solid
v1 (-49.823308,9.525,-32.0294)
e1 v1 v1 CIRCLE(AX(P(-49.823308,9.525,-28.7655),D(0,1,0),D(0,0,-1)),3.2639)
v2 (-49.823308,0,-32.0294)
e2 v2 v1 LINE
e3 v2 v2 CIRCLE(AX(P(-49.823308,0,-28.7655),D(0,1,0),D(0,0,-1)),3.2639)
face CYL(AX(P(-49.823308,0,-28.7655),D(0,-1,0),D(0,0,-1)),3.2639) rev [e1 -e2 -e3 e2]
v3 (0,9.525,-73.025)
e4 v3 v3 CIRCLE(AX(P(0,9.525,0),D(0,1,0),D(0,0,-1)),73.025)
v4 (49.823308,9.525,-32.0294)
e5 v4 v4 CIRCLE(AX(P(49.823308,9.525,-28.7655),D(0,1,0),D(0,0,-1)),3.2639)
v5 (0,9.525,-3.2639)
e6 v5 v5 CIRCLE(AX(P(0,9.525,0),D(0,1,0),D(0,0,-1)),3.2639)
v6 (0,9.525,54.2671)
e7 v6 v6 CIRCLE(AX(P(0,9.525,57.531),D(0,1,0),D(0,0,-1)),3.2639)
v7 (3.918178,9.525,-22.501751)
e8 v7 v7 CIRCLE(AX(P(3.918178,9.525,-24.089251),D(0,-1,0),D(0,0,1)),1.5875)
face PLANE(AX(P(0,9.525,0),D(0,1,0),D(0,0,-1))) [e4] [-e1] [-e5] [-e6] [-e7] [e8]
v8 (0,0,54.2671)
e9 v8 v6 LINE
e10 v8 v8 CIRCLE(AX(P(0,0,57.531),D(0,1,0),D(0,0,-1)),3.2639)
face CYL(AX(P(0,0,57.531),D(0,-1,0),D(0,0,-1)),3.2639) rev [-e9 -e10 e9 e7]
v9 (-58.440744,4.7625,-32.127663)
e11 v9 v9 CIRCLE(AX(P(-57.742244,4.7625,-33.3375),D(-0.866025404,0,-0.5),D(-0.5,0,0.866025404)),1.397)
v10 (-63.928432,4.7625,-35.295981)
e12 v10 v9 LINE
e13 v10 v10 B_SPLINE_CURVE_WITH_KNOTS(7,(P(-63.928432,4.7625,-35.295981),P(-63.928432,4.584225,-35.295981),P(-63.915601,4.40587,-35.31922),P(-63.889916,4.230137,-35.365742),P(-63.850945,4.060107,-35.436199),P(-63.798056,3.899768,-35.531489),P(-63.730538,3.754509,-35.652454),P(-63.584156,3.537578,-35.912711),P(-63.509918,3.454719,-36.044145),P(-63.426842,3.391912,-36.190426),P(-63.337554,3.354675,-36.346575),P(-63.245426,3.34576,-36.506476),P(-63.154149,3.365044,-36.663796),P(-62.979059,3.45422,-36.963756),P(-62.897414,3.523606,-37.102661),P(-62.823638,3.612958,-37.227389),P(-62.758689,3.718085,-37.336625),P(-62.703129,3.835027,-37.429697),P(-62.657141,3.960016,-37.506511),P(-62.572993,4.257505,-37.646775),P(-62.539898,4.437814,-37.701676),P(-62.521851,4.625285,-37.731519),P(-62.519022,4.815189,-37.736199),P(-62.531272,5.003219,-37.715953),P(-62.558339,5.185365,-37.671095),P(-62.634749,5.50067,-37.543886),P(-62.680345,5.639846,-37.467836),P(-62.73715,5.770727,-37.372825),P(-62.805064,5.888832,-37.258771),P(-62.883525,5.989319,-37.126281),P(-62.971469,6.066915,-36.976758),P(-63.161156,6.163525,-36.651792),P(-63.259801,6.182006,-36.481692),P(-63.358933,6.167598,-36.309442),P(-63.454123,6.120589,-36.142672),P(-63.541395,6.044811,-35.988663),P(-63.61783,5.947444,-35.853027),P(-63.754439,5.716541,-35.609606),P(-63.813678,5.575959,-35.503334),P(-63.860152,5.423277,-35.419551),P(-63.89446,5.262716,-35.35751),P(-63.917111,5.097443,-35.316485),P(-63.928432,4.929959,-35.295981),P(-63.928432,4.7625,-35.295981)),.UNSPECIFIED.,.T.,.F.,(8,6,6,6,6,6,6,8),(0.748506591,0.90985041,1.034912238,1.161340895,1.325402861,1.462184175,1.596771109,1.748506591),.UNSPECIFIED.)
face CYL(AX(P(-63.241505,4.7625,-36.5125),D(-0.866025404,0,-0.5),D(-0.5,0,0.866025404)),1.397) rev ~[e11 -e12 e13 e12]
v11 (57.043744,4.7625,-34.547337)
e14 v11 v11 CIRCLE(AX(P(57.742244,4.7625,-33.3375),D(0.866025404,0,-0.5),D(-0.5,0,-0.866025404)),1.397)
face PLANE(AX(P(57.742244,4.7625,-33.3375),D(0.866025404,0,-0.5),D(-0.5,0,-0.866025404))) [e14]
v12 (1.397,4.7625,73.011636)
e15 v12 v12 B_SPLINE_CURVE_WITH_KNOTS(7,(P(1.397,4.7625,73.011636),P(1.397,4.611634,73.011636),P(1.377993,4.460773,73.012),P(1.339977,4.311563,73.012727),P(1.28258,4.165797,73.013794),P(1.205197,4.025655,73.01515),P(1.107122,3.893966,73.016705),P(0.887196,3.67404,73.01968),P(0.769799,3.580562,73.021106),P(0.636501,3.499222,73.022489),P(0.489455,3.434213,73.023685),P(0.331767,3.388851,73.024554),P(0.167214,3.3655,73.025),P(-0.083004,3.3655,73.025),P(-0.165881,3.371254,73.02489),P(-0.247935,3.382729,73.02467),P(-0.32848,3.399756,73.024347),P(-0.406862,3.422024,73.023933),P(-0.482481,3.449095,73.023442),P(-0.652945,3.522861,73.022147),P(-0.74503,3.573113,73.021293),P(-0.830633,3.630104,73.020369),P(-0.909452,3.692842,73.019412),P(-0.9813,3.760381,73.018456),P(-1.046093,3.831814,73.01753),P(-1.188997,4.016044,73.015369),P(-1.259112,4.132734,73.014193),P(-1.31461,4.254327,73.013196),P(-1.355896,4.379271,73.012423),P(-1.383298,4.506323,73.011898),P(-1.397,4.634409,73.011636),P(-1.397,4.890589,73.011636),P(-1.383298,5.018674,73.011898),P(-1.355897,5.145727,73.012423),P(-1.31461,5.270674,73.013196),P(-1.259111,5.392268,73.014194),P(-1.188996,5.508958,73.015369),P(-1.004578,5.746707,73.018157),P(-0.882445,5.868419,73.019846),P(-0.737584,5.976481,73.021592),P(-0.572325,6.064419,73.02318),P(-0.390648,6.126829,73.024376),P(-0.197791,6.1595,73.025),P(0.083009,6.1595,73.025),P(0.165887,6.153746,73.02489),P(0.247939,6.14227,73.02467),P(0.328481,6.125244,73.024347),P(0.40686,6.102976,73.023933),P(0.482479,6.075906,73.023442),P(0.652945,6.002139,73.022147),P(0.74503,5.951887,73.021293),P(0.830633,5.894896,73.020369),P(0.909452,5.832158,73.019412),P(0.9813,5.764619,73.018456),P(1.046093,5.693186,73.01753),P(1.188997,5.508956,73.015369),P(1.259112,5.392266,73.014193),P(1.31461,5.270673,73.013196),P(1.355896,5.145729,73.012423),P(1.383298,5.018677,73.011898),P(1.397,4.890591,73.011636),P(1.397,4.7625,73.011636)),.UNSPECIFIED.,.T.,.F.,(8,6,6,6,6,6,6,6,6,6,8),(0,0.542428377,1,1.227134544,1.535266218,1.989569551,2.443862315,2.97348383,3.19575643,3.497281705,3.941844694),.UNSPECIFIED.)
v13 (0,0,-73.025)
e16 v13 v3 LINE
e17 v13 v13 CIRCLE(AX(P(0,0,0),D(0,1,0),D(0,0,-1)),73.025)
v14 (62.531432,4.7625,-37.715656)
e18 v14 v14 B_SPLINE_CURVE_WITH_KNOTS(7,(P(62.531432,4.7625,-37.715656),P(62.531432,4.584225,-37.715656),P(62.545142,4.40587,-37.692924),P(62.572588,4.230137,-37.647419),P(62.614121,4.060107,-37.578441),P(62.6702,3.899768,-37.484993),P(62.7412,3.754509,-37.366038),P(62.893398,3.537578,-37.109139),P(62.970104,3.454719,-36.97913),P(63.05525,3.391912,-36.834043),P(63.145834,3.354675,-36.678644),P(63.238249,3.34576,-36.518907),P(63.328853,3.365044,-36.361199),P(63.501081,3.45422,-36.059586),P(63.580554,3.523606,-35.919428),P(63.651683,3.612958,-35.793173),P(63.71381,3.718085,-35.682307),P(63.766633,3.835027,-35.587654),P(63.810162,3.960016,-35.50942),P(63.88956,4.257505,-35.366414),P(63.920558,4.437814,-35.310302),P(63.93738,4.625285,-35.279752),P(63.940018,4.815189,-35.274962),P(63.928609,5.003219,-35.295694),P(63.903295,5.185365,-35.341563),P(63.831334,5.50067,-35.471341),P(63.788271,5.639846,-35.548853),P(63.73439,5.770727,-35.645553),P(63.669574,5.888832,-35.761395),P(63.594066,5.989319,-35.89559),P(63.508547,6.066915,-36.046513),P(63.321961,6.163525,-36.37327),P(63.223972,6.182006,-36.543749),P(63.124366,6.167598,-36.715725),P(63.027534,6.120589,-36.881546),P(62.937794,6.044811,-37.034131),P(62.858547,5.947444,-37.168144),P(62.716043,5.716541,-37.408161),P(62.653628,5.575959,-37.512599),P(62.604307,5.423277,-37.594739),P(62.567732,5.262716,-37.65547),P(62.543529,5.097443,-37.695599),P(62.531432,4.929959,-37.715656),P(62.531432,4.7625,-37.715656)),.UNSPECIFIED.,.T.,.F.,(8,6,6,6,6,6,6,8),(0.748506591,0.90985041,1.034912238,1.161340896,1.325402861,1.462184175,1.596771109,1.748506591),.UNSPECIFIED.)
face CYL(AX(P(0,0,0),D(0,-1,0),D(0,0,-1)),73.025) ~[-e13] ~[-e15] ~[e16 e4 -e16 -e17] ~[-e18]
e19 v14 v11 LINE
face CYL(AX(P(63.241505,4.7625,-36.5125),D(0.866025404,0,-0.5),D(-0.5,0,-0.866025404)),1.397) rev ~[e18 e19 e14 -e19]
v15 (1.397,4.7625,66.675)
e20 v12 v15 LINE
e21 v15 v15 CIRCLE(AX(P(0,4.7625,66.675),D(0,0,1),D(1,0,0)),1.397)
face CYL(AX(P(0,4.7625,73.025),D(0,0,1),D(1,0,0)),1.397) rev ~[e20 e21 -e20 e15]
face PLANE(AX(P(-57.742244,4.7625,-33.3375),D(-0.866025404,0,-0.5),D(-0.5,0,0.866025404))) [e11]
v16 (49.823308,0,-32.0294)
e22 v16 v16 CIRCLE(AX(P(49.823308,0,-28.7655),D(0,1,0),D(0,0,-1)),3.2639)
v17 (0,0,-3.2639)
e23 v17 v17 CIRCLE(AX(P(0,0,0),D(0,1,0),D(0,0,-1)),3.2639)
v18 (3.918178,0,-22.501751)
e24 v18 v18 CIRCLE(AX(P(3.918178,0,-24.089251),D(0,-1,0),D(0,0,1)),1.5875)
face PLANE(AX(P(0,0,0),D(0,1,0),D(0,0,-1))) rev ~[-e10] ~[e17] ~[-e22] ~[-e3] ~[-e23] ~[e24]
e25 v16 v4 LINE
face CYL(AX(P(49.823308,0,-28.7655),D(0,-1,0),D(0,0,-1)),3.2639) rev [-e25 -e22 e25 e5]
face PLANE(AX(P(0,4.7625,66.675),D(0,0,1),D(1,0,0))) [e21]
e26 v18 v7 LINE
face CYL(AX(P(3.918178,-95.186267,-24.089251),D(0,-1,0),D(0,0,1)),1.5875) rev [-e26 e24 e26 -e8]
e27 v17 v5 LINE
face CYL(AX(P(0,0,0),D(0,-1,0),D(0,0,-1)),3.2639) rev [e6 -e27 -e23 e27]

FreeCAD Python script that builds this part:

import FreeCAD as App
import Part
import Sketcher
from FreeCAD import Vector
Q = App.Units.Quantity

doc = App.newDocument("Part")
body = doc.addObject("PartDesign::Body", "Body")

sketch1 = body.newObject("Sketcher::SketchObject", "Sketch")
sketch1.AttachmentSupport = (doc.getObject("XZ_Plane"), [""])
sketch1.MapMode = "FlatFace"
sketch1.addGeometry([
    Part.Circle(Vector(0, 0, 0), Vector(0, 0, 1), 73),
    Part.Circle(Vector(0, 57.5, 0), Vector(0, 0, 1), 3.3),
    Part.Circle(Vector(49.8, -28.8, 0), Vector(0, 0, 1), 3.3),
    Part.Circle(Vector(0, 0, 0), Vector(0, 0, 1), 3.3),
    Part.Circle(Vector(-49.8, -28.8, 0), Vector(0, 0, 1), 3.3),
], False)
sketch1.addConstraint([
    Sketcher.Constraint("Coincident", 0, 3, -1, 1),
    Sketcher.Constraint("Coincident", 3, 3, -1, 1),
    Sketcher.Constraint("Equal", 1, 2),
    Sketcher.Constraint("Equal", 2, 3),
    Sketcher.Constraint("Equal", 3, 4),
    Sketcher.Constraint("Symmetric", 2, 3, 4, 3, -2),
    Sketcher.Constraint("PointOnObject", 1, 3, -2),
    Sketcher.Constraint("Diameter", 0, Q("5.75 in")),
    Sketcher.Constraint("Diameter", 1, Q("0.257 in")),
    Sketcher.Constraint("DistanceY", -1, 1, 1, 3, Q("2.265 in")),
    Sketcher.Constraint("DistanceY", 2, 3, -1, 1, Q("1.1325 in")),
    Sketcher.Constraint("DistanceX", -1, 1, 2, 3, Q("49.823308 mm")),
])
pad1 = body.newObject("PartDesign::Pad", "Pad")
pad1.Profile = sketch1
pad1.Length = Q("0.375 in")
pad1.Reversed = True

sketch2 = body.newObject("Sketcher::SketchObject", "Sketch001")
sketch2.AttachmentSupport = (doc.getObject("XY_Plane"), [""])
sketch2.MapMode = "FlatFace"
sketch2.AttachmentOffset = App.Placement(Vector(0, 0, 2.875 * 25.4), App.Rotation())
sketch2.addGeometry(Part.Circle(Vector(0, 4.8, 0), Vector(0, 0, 1), 1.4), False)
sketch2.addConstraint([
    Sketcher.Constraint("PointOnObject", 0, 3, -2),
    Sketcher.Constraint("Diameter", 0, Q("0.11 in")),
    Sketcher.Constraint("DistanceY", -1, 1, 0, 3, Q("0.1875 in")),
])
pocket1 = body.newObject("PartDesign::Pocket", "Pocket")
pocket1.Profile = sketch2
pocket1.Length = Q("0.25 in")
doc.recompute()

polarpattern = body.newObject("PartDesign::PolarPattern", "PolarPattern")
polarpattern.Originals = [pocket1]
polarpattern.Axis = (doc.getObject("Y_Axis"), [""])
polarpattern.Angle = 360
polarpattern.Occurrences = 3
body.Tip = polarpattern

sketch3 = body.newObject("Sketcher::SketchObject", "Sketch002")
sketch3.AttachmentSupport = (doc.getObject("XZ_Plane"), [""])
sketch3.MapMode = "FlatFace"
sketch3.AttachmentOffset = App.Placement(Vector(0, 0, -0.375 * 25.4), App.Rotation())
sketch3.addGeometry(Part.Circle(Vector(3.9, -24.1, 0), Vector(0, 0, 1), 1.6), False)
sketch3.addConstraint([
    Sketcher.Constraint("Diameter", 0, Q("0.125 in")),
    Sketcher.Constraint("DistanceY", 0, 3, -1, 1, Q("24.089251 mm")),
    Sketcher.Constraint("DistanceX", -1, 1, 0, 3, Q("3.918178 mm")),
])
pocket2 = body.newObject("PartDesign::Pocket", "Pocket001")
pocket2.Profile = sketch3
pocket2.Type = "ThroughAll"
pocket2.Midplane = True

doc.recompute()
